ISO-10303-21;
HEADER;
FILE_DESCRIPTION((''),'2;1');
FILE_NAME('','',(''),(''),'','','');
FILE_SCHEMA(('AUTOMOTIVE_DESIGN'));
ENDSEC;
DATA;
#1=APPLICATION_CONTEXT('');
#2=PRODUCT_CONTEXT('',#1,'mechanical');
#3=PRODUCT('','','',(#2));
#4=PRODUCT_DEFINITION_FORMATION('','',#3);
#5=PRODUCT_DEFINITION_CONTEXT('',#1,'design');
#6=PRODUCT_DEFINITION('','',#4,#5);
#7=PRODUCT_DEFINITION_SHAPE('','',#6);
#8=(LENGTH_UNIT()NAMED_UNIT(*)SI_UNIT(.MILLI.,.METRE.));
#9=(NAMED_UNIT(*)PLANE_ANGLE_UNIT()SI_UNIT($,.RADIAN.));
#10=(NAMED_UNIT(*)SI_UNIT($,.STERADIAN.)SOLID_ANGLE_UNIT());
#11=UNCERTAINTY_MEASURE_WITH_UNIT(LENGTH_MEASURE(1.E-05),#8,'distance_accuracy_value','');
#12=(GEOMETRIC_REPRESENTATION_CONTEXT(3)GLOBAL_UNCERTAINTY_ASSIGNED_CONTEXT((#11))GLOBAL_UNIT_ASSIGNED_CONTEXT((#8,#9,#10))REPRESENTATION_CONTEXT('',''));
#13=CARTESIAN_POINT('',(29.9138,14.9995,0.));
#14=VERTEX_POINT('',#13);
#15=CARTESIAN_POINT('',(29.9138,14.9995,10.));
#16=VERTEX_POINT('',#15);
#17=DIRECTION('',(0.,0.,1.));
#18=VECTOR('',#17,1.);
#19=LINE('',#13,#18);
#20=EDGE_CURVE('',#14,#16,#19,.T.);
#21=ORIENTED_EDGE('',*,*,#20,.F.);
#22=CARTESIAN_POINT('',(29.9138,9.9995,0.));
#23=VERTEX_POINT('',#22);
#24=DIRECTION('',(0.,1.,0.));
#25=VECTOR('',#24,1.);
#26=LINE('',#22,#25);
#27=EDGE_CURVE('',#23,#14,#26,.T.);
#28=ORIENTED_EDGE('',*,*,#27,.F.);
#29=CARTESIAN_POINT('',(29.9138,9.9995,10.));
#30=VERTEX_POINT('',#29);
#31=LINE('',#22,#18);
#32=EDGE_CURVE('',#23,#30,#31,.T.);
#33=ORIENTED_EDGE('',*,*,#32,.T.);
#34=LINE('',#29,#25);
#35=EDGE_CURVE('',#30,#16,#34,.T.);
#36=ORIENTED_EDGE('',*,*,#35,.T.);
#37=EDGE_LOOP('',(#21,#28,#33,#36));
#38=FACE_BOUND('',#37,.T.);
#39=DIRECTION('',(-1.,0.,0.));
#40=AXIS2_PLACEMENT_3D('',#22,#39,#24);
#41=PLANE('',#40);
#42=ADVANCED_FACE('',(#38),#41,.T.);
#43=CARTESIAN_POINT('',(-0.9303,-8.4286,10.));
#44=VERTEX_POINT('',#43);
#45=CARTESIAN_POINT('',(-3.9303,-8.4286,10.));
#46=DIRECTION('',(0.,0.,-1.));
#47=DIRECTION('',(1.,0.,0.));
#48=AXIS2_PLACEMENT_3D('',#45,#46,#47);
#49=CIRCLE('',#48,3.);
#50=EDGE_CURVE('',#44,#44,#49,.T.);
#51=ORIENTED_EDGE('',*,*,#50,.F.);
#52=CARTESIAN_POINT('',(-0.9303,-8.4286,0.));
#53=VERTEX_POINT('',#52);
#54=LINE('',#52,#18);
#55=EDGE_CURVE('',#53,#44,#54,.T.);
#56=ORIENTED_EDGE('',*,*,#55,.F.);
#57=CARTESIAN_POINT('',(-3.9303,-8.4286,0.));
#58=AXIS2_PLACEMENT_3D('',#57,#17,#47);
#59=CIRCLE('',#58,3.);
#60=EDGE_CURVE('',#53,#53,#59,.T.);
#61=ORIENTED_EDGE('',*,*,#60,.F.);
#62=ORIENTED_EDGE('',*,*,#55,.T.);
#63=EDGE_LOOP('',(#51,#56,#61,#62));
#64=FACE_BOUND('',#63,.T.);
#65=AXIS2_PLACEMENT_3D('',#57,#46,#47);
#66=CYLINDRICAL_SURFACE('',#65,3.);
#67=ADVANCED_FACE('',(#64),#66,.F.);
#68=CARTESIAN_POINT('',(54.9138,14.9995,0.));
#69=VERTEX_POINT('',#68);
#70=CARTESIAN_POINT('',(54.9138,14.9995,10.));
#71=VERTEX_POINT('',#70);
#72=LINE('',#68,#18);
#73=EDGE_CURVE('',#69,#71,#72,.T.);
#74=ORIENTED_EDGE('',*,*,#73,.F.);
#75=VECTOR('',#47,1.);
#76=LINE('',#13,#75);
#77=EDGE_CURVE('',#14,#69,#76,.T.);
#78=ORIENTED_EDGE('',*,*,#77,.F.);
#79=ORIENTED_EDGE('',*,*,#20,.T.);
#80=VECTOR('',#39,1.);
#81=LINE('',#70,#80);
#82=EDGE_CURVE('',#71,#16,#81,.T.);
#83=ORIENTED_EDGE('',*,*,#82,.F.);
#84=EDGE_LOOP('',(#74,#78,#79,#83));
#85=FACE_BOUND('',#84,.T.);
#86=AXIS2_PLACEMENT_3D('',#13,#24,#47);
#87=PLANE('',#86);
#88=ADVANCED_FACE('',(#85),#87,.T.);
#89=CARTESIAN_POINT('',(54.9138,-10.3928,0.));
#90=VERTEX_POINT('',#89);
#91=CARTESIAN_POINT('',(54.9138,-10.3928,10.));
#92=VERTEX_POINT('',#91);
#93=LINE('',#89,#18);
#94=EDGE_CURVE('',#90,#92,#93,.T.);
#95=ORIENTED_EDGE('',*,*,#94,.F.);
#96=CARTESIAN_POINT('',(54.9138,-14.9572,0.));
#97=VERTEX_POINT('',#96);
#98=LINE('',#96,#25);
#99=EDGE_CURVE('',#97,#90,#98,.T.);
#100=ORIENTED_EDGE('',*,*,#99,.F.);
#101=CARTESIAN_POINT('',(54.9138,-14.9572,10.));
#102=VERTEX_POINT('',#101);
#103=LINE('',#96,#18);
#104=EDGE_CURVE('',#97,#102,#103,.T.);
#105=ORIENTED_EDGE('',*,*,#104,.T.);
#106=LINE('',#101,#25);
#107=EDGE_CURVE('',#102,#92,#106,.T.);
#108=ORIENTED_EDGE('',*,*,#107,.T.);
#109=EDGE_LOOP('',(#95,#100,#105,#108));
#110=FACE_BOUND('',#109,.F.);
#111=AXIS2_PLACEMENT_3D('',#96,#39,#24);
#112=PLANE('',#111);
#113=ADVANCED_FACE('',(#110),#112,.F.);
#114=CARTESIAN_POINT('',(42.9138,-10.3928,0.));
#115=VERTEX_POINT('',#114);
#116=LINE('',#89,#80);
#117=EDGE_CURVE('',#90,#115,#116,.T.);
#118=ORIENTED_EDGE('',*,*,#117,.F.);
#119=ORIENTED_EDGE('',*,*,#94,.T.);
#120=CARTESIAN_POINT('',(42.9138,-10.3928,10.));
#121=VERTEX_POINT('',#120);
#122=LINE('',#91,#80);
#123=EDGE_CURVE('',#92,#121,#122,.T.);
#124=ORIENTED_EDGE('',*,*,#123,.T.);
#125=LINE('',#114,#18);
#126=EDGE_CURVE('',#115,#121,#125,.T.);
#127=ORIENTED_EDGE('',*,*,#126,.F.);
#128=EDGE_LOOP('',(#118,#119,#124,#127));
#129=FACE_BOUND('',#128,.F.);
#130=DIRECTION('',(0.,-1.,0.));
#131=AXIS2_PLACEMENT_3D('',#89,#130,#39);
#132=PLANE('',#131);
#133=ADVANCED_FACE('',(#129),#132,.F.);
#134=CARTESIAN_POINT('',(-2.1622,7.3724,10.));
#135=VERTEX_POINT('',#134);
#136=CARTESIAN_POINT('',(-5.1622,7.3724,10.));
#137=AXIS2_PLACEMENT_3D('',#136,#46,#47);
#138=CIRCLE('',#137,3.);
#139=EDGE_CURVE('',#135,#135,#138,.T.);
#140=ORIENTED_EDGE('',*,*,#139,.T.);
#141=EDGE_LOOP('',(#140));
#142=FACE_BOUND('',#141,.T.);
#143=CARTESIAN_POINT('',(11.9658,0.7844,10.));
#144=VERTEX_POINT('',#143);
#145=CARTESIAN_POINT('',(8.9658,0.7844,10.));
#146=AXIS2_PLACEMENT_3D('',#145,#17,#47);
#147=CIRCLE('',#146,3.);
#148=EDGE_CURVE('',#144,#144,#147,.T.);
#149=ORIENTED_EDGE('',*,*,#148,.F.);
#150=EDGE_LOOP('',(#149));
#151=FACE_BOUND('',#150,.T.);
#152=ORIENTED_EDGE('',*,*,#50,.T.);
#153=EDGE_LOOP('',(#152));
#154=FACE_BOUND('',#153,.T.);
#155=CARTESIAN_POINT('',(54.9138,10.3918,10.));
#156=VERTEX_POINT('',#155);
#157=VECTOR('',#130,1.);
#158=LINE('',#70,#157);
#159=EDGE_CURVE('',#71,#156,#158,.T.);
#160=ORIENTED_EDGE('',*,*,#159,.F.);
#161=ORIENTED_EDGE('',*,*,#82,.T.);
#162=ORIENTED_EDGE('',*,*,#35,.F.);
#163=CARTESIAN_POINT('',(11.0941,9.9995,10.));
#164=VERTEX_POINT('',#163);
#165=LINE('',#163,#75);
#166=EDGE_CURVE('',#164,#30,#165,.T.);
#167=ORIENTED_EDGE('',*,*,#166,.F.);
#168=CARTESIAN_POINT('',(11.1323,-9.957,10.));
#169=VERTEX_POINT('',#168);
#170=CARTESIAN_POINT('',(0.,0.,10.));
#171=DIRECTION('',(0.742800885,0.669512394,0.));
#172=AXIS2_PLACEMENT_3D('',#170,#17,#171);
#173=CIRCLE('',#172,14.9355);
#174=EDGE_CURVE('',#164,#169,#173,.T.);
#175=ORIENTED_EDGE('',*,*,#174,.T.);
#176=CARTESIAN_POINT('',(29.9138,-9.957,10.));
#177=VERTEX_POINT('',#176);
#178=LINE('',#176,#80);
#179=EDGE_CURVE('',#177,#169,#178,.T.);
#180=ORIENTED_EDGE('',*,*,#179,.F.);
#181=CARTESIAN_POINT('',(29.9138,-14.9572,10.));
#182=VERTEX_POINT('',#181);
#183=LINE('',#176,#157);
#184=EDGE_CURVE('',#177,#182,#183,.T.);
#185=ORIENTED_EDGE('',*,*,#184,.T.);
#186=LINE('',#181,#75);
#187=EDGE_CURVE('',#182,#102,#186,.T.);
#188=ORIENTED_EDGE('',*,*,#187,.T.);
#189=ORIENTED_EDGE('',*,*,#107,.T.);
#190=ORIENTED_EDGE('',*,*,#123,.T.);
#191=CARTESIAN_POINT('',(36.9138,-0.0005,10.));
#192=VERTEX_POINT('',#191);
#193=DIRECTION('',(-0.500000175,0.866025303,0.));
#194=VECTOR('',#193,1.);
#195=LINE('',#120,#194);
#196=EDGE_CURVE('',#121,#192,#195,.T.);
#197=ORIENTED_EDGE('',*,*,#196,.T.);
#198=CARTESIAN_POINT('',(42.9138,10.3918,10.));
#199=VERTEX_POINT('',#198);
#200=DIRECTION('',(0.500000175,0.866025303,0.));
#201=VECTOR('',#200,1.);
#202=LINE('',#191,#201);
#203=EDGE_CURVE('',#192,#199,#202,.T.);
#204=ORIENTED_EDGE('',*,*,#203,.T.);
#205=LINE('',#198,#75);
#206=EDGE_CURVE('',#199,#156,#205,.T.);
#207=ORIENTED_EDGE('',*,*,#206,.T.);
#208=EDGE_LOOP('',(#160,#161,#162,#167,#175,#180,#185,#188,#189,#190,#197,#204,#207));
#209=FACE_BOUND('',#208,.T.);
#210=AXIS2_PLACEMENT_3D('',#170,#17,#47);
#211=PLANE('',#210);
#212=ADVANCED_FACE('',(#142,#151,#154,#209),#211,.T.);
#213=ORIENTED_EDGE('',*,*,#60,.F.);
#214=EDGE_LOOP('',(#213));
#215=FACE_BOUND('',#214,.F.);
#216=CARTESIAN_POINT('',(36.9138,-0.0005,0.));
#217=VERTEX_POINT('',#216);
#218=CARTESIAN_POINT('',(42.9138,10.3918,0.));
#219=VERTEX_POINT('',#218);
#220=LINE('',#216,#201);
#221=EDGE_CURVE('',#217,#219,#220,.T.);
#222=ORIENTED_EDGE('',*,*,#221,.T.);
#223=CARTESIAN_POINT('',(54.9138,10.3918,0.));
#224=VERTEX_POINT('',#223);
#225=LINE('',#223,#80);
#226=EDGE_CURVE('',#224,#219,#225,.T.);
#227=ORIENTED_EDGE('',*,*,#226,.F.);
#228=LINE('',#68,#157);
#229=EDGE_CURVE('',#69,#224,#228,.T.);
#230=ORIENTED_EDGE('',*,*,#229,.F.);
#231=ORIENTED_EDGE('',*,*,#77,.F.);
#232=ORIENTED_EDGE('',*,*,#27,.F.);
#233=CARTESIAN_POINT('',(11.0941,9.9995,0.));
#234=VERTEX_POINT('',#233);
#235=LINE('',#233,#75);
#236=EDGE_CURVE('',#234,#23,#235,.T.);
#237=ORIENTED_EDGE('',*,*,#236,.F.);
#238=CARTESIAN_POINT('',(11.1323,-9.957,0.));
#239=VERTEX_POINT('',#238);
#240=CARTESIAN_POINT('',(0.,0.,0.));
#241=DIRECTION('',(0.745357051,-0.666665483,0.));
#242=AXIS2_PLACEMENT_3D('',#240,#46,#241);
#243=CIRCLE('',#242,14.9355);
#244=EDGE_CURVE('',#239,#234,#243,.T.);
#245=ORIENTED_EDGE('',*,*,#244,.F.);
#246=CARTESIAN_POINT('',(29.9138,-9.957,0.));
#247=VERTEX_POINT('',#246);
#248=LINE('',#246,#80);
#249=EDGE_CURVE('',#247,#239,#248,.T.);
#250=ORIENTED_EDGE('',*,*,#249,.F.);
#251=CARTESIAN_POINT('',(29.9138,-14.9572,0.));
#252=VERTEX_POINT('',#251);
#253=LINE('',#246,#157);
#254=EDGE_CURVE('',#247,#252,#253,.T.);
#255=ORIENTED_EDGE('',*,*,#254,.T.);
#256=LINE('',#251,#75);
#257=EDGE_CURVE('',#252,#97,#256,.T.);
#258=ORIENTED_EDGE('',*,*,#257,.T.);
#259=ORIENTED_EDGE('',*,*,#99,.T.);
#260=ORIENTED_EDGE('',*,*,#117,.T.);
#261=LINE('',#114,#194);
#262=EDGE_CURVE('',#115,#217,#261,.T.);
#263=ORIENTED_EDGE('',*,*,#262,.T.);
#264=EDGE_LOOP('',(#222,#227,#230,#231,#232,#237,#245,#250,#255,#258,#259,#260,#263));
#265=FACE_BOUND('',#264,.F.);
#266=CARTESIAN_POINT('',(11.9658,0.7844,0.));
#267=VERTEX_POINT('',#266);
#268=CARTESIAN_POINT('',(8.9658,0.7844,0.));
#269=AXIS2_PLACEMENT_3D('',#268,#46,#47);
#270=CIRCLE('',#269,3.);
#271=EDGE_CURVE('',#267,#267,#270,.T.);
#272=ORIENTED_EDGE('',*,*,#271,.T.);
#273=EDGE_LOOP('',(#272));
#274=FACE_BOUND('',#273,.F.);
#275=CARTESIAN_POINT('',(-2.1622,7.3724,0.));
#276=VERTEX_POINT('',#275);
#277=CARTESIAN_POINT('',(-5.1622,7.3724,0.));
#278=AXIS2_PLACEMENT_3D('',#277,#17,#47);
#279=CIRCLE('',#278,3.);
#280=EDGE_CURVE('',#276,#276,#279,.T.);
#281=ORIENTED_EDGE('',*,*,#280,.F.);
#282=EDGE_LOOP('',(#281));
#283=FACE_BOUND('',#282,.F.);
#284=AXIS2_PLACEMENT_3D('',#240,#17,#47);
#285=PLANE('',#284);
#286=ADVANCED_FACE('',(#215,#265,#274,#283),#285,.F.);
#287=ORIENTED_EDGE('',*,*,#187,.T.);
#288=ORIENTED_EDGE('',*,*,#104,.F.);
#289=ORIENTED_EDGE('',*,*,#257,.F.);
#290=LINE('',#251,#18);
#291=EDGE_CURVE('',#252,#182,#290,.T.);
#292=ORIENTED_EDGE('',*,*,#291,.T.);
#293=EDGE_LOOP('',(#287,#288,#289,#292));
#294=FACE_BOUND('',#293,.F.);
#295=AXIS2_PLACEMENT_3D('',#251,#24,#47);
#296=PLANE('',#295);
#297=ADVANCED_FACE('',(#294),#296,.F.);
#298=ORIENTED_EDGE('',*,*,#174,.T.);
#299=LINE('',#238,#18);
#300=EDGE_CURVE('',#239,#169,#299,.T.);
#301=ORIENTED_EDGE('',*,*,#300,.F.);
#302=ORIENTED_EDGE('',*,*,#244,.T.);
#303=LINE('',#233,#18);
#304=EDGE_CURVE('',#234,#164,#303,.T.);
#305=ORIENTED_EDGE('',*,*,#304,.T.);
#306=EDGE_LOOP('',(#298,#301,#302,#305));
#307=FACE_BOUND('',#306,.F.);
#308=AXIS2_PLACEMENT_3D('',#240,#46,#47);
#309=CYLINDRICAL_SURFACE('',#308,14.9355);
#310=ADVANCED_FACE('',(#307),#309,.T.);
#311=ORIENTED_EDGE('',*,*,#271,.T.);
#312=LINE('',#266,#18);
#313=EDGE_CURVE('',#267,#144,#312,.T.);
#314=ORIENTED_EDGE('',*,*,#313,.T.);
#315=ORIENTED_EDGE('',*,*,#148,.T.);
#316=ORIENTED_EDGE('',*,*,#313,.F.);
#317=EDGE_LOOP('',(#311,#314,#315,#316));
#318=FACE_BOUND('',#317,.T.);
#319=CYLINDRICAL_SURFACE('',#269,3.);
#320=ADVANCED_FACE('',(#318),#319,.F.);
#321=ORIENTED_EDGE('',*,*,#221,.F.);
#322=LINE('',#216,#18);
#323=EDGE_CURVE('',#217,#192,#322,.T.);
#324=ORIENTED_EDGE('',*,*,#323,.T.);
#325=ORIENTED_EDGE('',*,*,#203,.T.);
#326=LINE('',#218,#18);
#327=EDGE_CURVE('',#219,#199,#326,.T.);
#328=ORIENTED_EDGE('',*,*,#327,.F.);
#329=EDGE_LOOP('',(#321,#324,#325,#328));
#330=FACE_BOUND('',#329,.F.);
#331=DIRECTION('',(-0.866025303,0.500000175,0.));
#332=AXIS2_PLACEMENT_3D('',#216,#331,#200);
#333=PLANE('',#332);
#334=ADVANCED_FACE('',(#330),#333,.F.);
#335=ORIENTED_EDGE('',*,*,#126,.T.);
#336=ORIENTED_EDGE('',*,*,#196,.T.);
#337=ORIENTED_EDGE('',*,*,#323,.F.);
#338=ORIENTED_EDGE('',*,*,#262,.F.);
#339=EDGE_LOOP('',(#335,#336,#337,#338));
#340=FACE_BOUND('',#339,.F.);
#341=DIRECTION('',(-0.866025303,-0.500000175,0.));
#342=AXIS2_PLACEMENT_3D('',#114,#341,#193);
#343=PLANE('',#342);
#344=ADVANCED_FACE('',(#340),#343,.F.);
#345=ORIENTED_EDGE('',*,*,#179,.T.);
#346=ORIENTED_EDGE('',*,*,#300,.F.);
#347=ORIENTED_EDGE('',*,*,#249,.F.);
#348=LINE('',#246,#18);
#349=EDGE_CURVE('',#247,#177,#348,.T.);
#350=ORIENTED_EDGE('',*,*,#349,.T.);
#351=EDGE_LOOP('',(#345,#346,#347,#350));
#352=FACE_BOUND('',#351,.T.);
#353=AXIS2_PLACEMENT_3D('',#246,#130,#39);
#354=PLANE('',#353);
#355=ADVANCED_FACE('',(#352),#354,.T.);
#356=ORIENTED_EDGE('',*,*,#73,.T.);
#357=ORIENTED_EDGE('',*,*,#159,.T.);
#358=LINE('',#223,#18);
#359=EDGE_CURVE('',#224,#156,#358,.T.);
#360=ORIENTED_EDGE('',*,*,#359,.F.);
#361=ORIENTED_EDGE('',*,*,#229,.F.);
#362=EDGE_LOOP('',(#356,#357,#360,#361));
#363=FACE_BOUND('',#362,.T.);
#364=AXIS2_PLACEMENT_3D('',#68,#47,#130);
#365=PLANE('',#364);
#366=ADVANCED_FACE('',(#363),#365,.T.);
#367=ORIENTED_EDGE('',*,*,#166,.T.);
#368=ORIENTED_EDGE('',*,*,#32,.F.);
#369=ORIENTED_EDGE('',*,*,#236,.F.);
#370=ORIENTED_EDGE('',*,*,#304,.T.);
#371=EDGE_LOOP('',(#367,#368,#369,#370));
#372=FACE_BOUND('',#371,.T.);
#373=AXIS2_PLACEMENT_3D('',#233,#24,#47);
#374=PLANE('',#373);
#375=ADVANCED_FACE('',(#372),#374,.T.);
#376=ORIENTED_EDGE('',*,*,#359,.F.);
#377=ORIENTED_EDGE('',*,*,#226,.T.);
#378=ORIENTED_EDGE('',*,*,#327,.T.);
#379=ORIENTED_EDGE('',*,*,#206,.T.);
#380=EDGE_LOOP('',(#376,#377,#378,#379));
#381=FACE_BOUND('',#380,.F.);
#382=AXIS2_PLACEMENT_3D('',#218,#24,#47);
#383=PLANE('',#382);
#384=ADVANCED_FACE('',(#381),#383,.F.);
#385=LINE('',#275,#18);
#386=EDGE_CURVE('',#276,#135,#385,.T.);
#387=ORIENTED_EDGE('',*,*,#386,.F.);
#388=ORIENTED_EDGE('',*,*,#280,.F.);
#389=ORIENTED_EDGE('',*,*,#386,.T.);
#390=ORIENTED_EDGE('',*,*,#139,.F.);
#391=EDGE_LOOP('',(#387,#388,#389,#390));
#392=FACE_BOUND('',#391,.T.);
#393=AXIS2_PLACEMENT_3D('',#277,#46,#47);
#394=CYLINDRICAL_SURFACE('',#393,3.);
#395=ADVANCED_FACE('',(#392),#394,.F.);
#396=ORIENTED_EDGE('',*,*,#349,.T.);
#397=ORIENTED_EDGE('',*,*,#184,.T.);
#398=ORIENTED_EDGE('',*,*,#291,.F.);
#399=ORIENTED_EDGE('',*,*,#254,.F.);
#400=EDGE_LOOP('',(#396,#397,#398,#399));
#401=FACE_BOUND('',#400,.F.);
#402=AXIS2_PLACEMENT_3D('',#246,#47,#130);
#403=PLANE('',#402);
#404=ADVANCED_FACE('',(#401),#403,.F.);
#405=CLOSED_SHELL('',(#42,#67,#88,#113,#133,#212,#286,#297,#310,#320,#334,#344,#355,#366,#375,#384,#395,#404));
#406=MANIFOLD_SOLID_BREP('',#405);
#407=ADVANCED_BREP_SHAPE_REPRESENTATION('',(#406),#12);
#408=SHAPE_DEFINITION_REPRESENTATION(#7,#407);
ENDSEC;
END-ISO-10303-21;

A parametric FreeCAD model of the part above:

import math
import FreeCAD as App
import Part
import Sketcher
Q = App.Units.Quantity

doc = App.newDocument("Part")
body = doc.addObject("PartDesign::Body", "Body")

# Sketch on XY plane
sketch1 = body.newObject("Sketcher::SketchObject", "Sketch")
sketch1.AttachmentSupport = (doc.getObject("XY_Plane"), [""])
sketch1.MapMode = "FlatFace"
sketch1.addGeometry([
    Part.ArcOfCircle(Part.Circle(App.Vector(0, 0, 0), App.Vector(0, 0, 1), 14.9), math.radians(42), math.radians(318)),  # 0
    Part.LineSegment(App.Vector(11.1, -10, 0), App.Vector(29.9, -10, 0)),  # 1
    Part.LineSegment(App.Vector(29.9, -10, 0), App.Vector(29.9, -15, 0)),  # 2
    Part.LineSegment(App.Vector(29.9, -15, 0), App.Vector(54.9, -15, 0)),  # 3
    Part.LineSegment(App.Vector(54.9, -15, 0), App.Vector(54.9, -10.4, 0)),  # 4
    Part.LineSegment(App.Vector(54.9, -10.4, 0), App.Vector(42.9, -10.4, 0)),  # 5
    Part.LineSegment(App.Vector(42.9, -10.4, 0), App.Vector(36.9, 0, 0)),  # 6
    Part.LineSegment(App.Vector(36.9, 0, 0), App.Vector(42.9, 10.4, 0)),  # 7
    Part.LineSegment(App.Vector(42.9, 10.4, 0), App.Vector(54.9, 10.4, 0)),  # 8
    Part.LineSegment(App.Vector(54.9, 10.4, 0), App.Vector(54.9, 15, 0)),  # 9
    Part.LineSegment(App.Vector(54.9, 15, 0), App.Vector(29.9, 15, 0)),  # 10
    Part.LineSegment(App.Vector(29.9, 15, 0), App.Vector(29.9, 10, 0)),  # 11
    Part.LineSegment(App.Vector(29.9, 10, 0), App.Vector(11.1, 10, 0)),  # 12
    Part.Circle(App.Vector(9, 0.8, 0), App.Vector(0, 0, 1), 3),  # 13
    Part.Circle(App.Vector(-5.2, 7.4, 0), App.Vector(0, 0, 1), 3),  # 14
    Part.Circle(App.Vector(-3.9, -8.4, 0), App.Vector(0, 0, 1), 3),  # 15
], False)
sketch1.addConstraint([
    Sketcher.Constraint("Coincident", 0, 2, 1, 1),
    Sketcher.Constraint("Coincident", 1, 2, 2, 1),
    Sketcher.Constraint("Coincident", 2, 2, 3, 1),
    Sketcher.Constraint("Coincident", 3, 2, 4, 1),
    Sketcher.Constraint("Coincident", 4, 2, 5, 1),
    Sketcher.Constraint("Coincident", 5, 2, 6, 1),
    Sketcher.Constraint("Coincident", 6, 2, 7, 1),
    Sketcher.Constraint("Coincident", 7, 2, 8, 1),
    Sketcher.Constraint("Coincident", 8, 2, 9, 1),
    Sketcher.Constraint("Coincident", 9, 2, 10, 1),
    Sketcher.Constraint("Coincident", 10, 2, 11, 1),
    Sketcher.Constraint("Coincident", 11, 2, 12, 1),
    Sketcher.Constraint("Coincident", 12, 2, 0, 1),
    Sketcher.Constraint("Horizontal", 1),
    Sketcher.Constraint("Vertical", 2),
    Sketcher.Constraint("Horizontal", 3),
    Sketcher.Constraint("Vertical", 4),
    Sketcher.Constraint("Horizontal", 5),
    Sketcher.Constraint("Horizontal", 8),
    Sketcher.Constraint("Vertical", 9),
    Sketcher.Constraint("Horizontal", 10),
    Sketcher.Constraint("Vertical", 11),
    Sketcher.Constraint("Horizontal", 12),
    Sketcher.Constraint("Coincident", 0, 3, -1, 1),
    Sketcher.Constraint("Equal", 13, 14),
    Sketcher.Constraint("Equal", 14, 15),
    Sketcher.Constraint("Vertical", 5, 2, 7, 2),
    Sketcher.Constraint("Vertical", 4, 2, 8, 2),
    Sketcher.Constraint("Vertical", 2, 2, 10, 2),
    Sketcher.Constraint("Equal", 2, 11),
    Sketcher.Constraint("Equal", 6, 7),
    Sketcher.Constraint("Diameter", 13, Q("6 mm")),
    Sketcher.Constraint("DistanceX", 3, 1, 3, 2, Q("25 mm")),
    Sketcher.Constraint("DistanceX", 5, 2, 5, 1, Q("12 mm")),
    Sketcher.Constraint("DistanceY", 11, 2, 11, 1, Q("5 mm")),
    Sketcher.Constraint("Angle", 6, Q("120 deg")),
    Sketcher.Constraint("Distance", 6, Q("12 mm")),
    Sketcher.Constraint("DistanceY", 6, 2, 9, 2, Q("15 mm")),
    Sketcher.Constraint("Radius", 0, Q("14.9355 mm")),
    Sketcher.Constraint("DistanceX", 1, 1, 1, 2, Q("18.7815 mm")),
    Sketcher.Constraint("DistanceX", 12, 2, 12, 1, Q("18.8197 mm")),
    Sketcher.Constraint("DistanceY", 4, 1, 4, 2, Q("4.5644 mm")),
    Sketcher.Constraint("DistanceX", 14, 3, 13, 3, Q("14.128 mm")),
    Sketcher.Constraint("DistanceY", 13, 3, 14, 3, Q("6.588 mm")),
    Sketcher.Constraint("DistanceX", 15, 3, 13, 3, Q("12.896 mm")),
    Sketcher.Constraint("DistanceY", 15, 3, 13, 3, Q("9.213 mm")),
    Sketcher.Constraint("DistanceX", 13, 3, 1, 2, Q("20.948 mm")),
    Sketcher.Constraint("DistanceY", 13, 3, 10, 2, Q("14.215 mm")),
])
pad1 = body.newObject("PartDesign::Pad", "Pad")
pad1.Profile = sketch1
pad1.Length = 10

doc.recompute()
